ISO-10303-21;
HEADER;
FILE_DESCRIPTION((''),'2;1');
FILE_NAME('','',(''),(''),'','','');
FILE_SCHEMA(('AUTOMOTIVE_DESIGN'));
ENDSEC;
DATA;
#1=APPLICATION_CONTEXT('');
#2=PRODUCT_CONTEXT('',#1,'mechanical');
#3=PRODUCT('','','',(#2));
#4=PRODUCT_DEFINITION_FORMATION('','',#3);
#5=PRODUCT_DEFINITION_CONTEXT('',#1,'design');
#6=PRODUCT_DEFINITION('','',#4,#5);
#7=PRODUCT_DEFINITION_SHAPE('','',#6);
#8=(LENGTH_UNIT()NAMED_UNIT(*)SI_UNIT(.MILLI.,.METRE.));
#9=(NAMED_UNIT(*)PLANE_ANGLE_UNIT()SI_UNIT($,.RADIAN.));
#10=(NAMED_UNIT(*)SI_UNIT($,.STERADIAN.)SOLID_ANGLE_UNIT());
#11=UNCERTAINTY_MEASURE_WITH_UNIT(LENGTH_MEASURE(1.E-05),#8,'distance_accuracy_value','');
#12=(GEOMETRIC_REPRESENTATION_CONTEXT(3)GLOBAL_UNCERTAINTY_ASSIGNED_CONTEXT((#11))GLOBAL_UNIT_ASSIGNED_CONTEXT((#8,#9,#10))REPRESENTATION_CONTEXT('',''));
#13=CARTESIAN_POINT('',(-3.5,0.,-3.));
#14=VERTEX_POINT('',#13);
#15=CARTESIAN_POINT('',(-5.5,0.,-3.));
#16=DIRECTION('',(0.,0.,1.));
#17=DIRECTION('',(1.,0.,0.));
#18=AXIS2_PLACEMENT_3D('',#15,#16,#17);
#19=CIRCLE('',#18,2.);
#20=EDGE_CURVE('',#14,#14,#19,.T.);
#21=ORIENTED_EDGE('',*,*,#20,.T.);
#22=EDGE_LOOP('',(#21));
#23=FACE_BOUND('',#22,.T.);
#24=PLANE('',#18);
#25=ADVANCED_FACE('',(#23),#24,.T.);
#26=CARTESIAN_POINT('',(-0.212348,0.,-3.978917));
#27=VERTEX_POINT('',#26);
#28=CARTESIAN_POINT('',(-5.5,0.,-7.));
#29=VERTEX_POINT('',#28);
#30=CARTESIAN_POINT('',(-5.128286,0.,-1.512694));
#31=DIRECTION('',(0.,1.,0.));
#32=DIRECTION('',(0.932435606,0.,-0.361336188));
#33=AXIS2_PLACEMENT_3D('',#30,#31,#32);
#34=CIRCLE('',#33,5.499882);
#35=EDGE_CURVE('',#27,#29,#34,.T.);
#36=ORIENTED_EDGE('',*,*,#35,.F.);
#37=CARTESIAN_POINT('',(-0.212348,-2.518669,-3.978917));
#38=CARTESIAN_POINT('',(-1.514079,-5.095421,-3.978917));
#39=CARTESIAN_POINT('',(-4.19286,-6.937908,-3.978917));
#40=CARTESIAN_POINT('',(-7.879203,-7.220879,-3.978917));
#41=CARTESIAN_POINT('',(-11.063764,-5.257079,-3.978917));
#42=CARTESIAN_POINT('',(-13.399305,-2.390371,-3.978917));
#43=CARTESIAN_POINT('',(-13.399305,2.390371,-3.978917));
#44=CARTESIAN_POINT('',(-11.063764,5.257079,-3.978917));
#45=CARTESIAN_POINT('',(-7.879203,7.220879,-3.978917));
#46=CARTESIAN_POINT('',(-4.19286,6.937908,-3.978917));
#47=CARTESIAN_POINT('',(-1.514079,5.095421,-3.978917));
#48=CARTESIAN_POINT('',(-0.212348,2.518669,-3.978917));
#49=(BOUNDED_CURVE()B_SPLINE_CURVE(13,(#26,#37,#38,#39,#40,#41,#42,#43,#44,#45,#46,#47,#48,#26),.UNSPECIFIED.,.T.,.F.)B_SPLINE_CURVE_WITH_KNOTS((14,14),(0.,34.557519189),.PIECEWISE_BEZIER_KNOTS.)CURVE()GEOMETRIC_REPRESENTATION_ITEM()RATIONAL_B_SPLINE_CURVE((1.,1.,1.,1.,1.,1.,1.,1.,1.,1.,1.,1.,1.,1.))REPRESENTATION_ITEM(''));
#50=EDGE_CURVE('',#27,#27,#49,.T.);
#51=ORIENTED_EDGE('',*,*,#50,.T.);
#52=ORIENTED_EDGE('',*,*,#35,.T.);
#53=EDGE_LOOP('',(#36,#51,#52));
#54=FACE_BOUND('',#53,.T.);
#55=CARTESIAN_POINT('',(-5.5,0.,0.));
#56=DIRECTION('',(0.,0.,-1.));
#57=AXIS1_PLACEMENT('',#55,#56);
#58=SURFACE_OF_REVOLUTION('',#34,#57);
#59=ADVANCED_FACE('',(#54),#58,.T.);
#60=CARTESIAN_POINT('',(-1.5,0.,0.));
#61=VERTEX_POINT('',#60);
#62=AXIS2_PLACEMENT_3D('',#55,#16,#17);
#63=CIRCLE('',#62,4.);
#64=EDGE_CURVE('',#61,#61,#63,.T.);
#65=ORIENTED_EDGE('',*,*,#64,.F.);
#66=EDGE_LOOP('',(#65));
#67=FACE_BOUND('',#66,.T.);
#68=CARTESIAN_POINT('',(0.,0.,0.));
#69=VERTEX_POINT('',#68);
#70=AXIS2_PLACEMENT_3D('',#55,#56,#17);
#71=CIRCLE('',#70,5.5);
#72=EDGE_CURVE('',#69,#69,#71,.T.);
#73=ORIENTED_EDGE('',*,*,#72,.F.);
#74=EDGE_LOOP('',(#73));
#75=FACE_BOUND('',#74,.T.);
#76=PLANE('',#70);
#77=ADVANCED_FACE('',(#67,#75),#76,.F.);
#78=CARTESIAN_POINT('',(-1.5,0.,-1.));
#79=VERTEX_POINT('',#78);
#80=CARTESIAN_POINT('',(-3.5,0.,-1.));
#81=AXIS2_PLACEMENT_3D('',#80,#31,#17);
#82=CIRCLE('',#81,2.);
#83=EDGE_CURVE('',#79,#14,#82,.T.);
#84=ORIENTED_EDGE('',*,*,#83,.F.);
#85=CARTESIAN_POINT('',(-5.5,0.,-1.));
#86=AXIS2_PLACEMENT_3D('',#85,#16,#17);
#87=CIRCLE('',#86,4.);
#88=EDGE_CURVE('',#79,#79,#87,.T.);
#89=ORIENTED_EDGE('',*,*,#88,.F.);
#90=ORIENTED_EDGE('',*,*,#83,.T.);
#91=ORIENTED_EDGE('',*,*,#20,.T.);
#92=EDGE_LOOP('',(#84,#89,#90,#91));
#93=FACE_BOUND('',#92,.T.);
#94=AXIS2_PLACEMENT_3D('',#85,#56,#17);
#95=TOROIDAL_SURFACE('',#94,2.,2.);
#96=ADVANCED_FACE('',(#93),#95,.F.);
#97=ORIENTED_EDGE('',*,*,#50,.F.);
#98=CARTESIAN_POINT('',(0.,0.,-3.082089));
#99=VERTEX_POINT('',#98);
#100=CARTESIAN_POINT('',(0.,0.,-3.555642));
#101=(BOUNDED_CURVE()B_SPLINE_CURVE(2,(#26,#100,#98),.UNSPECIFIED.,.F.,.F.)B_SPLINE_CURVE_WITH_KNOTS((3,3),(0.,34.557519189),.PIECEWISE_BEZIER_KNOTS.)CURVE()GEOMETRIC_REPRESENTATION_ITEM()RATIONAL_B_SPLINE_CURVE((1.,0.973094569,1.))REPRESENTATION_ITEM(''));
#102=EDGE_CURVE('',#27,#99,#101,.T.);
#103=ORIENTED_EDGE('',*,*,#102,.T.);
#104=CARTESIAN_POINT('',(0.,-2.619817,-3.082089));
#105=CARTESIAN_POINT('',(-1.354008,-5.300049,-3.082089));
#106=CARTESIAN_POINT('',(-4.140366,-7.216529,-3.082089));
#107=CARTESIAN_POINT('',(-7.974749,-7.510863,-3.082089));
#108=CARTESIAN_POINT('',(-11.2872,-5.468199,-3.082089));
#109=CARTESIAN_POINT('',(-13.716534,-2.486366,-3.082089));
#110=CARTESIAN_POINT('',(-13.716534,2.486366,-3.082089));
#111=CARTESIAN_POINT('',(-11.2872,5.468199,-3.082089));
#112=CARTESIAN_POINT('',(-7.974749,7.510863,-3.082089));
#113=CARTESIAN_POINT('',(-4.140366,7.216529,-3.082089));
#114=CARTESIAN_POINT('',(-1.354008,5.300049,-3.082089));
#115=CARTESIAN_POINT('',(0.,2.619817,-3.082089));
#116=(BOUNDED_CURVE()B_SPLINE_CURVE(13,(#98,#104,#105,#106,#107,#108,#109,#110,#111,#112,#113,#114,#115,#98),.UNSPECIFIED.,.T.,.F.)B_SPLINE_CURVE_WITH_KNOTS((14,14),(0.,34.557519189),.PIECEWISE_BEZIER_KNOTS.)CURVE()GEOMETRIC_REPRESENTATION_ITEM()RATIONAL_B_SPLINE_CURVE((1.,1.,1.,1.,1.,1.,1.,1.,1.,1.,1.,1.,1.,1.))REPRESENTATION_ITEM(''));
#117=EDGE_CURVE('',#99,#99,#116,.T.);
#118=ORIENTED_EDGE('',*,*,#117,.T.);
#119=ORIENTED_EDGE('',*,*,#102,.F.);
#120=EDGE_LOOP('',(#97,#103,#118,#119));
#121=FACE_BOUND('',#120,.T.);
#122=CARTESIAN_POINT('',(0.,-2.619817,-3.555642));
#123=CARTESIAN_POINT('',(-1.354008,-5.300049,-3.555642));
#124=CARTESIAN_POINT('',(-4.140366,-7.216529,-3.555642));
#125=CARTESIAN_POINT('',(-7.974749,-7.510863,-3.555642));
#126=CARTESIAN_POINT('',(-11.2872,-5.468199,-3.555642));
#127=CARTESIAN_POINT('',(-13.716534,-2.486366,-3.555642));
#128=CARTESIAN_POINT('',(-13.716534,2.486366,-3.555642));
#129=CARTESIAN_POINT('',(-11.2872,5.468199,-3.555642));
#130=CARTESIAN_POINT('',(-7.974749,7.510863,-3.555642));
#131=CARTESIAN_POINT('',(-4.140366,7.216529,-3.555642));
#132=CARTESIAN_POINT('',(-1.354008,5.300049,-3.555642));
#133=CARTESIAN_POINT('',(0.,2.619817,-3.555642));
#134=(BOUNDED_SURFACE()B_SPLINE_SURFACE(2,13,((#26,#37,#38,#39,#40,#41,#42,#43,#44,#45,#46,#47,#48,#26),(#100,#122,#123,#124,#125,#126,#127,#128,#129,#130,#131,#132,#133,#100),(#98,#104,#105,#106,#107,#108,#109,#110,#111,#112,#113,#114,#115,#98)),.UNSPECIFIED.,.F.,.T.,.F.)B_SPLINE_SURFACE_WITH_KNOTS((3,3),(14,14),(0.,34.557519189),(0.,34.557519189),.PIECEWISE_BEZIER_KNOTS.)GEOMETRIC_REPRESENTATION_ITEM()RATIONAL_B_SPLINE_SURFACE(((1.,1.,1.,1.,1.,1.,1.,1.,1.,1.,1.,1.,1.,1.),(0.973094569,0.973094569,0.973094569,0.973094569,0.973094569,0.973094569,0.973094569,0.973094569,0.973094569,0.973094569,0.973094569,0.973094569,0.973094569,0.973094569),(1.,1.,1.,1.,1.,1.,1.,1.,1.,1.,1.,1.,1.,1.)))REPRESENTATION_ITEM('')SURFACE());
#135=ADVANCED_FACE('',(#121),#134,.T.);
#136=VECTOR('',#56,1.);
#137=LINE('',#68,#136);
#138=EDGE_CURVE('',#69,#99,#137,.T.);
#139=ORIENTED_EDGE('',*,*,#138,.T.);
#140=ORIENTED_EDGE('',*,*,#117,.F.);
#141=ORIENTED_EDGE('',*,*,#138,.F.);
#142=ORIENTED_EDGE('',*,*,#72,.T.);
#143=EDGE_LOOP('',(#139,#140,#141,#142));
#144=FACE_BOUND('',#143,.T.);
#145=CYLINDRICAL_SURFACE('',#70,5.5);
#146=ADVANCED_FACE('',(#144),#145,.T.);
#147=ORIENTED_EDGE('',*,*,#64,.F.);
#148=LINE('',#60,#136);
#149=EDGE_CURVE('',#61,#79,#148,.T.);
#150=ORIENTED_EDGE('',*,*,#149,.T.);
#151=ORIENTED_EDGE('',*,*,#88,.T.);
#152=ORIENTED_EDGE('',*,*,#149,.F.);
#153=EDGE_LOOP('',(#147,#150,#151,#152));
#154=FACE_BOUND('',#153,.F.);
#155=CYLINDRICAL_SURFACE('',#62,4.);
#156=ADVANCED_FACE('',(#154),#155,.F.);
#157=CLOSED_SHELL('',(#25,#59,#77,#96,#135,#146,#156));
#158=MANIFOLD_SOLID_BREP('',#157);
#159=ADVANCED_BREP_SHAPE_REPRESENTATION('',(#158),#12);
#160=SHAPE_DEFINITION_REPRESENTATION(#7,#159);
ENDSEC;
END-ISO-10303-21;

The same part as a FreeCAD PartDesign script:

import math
import FreeCAD as App
import Part
import Sketcher


def edges_at(feature, points):
    """Names of the edges that pass closest to the given points."""
    edges = feature.Shape.Edges
    near = lambda p: min(range(len(edges)), key=lambda i: edges[i].distToShape(Part.Vertex(*p))[0])
    return sorted({f"Edge{near(p) + 1}" for p in points})

doc = App.newDocument("Part")
body = doc.addObject("PartDesign::Body", "Body")

sketch1 = body.newObject("Sketcher::SketchObject", "Sketch")
sketch1.AttachmentSupport = (doc.getObject("XZ_Plane"), [""])
sketch1.MapMode = "FlatFace"
sketch1.addGeometry([
    Part.LineSegment(App.Vector(-5.5, -7, 0), App.Vector(-5.5, 0, 0)),
    Part.LineSegment(App.Vector(-5.5, 0, 0), App.Vector(0, 0, 0)),
    Part.LineSegment(App.Vector(0, 0, 0), App.Vector(0, -3.5, 0)),
    Part.ArcOfCircle(Part.Circle(App.Vector(-5.1, -1.5, 0), App.Vector(0, 0, 1), 5.5), math.radians(-94), math.radians(-21)),
], False)
sketch1.addGeometry(Part.LineSegment(App.Vector(-5.5, 0, 0), App.Vector(-5.5, -7, 0)), True)
sketch1.addConstraint([
    Sketcher.Constraint("Coincident", 0, 2, 1, 1),
    Sketcher.Constraint("Coincident", 1, 2, 2, 1),
    Sketcher.Constraint("Coincident", 2, 2, 3, 2),
    Sketcher.Constraint("Coincident", 3, 1, 0, 1),
    Sketcher.Constraint("Vertical", 0),
    Sketcher.Constraint("Horizontal", 1),
    Sketcher.Constraint("Vertical", 2),
    Sketcher.Constraint("Vertical", 4),
    Sketcher.Constraint("Coincident", 1, 2, -1, 1),
    Sketcher.Constraint("Coincident", 4, 1, 0, 2),
    Sketcher.Constraint("Equal", 0, 4),
    Sketcher.Constraint("Radius", 3, 5.5),
    Sketcher.Constraint("DistanceY", 0, 1, 0, 2, 7.0),
    Sketcher.Constraint("DistanceX", 1, 1, 1, 2, 5.5),
    Sketcher.Constraint("DistanceY", 2, 2, 2, 1, 3.5),
])
revolution = body.newObject("PartDesign::Revolution", "Revolution")
revolution.Profile = sketch1
revolution.ReferenceAxis = (sketch1, ["Axis0"])
revolution.Angle = 360
doc.recompute()

fillet = body.newObject("PartDesign::Fillet", "Fillet")
fillet.Base = (revolution, edges_at(revolution, [(-11, 0, -3.5)]))
fillet.Radius = 2

sketch2 = body.newObject("Sketcher::SketchObject", "Sketch001")
sketch2.AttachmentSupport = (doc.getObject("XY_Plane"), [""])
sketch2.MapMode = "FlatFace"
sketch2.addGeometry(Part.Circle(App.Vector(-5.5, 0, 0), App.Vector(0, 0, 1), 4), False)
sketch2.addConstraint([
    Sketcher.Constraint("PointOnObject", 0, 3, -1),
    Sketcher.Constraint("Diameter", 0, 8.0),
    Sketcher.Constraint("DistanceX", 0, 3, -1, 1, 5.5),
])
pocket1 = body.newObject("PartDesign::Pocket", "Pocket")
pocket1.Profile = sketch2
pocket1.Length = 3
doc.recompute()

fillet2 = body.newObject("PartDesign::Fillet", "Fillet001")
fillet2.Base = (pocket1, edges_at(pocket1, [(-9.5, 0, -3)]))
fillet2.Radius = 2

doc.recompute()
